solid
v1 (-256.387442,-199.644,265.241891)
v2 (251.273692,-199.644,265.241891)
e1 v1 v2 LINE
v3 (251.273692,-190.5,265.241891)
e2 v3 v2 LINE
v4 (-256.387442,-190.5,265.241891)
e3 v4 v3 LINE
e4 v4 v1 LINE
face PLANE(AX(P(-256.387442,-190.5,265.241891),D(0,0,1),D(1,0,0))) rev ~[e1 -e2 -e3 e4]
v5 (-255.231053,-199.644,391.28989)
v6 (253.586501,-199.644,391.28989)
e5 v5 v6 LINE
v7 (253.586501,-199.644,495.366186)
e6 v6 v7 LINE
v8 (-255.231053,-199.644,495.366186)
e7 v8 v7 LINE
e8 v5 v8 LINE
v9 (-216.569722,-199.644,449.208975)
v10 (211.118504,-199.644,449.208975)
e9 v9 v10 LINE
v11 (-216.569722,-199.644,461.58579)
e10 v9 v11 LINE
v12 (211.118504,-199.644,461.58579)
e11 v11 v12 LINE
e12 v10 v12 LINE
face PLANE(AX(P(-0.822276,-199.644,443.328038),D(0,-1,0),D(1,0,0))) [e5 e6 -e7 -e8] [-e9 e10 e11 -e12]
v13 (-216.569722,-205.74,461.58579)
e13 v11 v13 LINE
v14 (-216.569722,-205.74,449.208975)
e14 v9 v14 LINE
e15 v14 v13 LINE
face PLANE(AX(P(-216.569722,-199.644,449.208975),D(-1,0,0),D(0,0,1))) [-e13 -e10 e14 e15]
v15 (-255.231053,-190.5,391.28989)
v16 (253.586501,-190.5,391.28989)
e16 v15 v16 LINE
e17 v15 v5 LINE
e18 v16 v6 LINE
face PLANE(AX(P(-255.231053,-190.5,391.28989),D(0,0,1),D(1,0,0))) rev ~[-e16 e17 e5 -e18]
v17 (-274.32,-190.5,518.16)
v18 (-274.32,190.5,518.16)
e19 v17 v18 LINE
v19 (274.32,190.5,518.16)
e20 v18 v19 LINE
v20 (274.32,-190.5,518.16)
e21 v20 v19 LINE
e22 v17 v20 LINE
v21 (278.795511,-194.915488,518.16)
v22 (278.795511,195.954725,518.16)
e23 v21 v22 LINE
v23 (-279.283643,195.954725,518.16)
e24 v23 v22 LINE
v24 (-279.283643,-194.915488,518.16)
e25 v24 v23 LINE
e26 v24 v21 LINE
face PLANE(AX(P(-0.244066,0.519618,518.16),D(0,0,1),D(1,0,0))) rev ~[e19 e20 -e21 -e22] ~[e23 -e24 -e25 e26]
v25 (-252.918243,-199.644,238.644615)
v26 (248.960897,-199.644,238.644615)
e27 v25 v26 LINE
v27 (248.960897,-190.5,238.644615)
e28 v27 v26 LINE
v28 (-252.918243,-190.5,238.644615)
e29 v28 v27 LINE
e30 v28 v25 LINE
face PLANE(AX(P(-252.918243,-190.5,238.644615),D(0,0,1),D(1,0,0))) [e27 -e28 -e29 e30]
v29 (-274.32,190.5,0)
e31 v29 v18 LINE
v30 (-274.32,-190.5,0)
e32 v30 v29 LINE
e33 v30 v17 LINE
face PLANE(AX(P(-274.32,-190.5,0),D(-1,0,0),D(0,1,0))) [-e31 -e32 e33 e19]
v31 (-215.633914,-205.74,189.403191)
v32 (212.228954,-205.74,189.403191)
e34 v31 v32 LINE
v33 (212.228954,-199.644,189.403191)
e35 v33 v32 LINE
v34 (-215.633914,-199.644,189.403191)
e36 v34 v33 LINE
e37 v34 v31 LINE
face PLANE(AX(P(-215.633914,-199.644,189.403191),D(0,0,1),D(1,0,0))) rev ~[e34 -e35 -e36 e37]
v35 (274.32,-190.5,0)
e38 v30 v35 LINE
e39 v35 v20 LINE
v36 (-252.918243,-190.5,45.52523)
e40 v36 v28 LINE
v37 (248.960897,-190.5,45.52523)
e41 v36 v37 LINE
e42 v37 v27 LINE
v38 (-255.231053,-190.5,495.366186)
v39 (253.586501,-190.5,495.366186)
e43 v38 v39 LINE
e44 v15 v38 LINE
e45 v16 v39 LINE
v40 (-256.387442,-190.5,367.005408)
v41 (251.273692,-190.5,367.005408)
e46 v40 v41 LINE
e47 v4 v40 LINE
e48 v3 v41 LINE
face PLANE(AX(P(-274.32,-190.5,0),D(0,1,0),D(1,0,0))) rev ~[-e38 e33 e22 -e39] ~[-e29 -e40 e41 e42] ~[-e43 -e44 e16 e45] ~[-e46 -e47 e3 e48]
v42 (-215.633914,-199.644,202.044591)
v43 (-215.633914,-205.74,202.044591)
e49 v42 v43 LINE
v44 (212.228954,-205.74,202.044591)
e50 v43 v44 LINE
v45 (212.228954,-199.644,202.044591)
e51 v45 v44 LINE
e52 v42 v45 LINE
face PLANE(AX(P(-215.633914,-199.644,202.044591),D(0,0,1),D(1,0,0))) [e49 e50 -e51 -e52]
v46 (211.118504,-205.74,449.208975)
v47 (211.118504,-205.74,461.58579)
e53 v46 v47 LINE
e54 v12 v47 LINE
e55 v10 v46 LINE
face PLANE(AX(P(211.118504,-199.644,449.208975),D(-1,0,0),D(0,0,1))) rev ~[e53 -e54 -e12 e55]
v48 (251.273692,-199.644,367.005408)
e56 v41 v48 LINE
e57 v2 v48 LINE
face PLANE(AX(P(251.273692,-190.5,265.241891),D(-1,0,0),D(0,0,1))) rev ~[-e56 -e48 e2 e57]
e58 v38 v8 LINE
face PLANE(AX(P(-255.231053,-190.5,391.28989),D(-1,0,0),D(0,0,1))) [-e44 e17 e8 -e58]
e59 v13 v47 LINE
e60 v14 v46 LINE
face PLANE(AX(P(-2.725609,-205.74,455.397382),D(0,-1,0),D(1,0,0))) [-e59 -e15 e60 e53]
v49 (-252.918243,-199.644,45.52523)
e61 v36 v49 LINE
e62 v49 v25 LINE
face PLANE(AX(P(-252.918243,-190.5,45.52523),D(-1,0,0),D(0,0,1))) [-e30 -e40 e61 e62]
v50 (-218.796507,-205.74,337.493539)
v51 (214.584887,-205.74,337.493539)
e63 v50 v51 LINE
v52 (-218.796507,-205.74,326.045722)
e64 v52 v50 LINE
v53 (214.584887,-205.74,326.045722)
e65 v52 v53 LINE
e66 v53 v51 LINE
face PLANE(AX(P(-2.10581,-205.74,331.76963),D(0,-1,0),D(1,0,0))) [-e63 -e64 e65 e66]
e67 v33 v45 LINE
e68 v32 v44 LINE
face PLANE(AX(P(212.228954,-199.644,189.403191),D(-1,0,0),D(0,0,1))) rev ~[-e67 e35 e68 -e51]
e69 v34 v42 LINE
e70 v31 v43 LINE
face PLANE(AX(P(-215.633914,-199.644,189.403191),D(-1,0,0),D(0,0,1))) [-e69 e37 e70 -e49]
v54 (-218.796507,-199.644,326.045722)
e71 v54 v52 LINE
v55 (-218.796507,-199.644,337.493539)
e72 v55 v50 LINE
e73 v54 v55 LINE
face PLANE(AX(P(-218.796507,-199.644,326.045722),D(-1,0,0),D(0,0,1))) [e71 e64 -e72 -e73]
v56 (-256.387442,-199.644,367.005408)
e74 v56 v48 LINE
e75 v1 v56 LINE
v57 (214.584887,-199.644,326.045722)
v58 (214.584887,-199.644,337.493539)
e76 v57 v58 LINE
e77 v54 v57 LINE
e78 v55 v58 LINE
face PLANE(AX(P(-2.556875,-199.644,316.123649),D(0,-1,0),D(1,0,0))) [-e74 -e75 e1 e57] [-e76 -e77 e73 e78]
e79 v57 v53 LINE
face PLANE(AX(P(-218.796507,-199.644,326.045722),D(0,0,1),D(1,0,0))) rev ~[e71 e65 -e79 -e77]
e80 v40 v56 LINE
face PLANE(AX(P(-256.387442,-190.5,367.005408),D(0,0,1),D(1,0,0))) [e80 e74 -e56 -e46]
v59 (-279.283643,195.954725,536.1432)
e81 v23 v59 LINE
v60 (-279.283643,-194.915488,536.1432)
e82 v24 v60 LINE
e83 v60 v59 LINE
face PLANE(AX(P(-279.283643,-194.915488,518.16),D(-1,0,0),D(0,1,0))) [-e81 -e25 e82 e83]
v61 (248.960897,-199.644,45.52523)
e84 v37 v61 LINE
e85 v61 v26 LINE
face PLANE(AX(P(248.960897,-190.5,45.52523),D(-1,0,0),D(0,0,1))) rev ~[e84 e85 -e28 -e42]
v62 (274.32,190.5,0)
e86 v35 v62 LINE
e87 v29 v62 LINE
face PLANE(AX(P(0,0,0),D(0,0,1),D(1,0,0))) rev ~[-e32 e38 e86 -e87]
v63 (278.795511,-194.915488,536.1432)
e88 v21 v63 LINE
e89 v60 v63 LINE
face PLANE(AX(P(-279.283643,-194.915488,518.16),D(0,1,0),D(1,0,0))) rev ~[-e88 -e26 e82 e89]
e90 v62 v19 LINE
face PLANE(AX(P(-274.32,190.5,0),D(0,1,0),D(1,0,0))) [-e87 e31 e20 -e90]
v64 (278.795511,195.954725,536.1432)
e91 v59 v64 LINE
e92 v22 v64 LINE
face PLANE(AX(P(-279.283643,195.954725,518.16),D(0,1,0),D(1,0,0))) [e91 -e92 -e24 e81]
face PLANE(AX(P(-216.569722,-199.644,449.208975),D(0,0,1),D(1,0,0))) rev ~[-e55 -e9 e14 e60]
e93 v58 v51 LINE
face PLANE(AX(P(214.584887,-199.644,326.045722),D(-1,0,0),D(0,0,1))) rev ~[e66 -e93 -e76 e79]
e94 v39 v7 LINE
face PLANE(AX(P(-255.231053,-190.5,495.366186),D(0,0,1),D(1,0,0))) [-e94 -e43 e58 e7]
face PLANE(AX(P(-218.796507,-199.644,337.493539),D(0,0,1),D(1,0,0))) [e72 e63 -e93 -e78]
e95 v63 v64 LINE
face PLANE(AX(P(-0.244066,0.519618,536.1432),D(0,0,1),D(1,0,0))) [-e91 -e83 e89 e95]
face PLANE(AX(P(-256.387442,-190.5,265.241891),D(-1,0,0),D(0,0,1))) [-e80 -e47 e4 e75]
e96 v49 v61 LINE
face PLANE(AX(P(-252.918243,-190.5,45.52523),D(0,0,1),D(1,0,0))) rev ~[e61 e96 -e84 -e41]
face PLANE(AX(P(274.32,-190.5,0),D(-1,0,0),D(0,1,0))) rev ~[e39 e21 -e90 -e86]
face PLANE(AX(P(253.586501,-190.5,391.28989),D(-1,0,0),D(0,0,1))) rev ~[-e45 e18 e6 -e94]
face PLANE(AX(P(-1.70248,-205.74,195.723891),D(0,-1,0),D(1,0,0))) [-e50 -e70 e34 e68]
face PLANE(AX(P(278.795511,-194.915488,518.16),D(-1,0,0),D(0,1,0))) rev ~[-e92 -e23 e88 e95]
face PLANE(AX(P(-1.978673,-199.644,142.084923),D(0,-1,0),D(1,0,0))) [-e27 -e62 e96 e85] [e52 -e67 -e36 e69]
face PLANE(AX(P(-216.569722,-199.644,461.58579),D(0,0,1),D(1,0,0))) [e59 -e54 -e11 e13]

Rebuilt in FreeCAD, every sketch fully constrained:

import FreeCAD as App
import Part
import Sketcher

V = App.Vector
Q = App.Units.Quantity

doc = App.newDocument("Part")
params = doc.addObject("Spreadsheet::Sheet", "Params")
for row, (alias, value) in enumerate([
    ("sketch1_height", "15 in"),
    ("sketch1_width", "21.6 in"),
    ("pad1_length", "20.4 in"),
    ("pad2_length", "0.708 in"),
    ("pad3_length", "0.36 in"),
    ("pad4_length", "0.24 in"),
], start=1):
    params.set(f"A{row}", alias)
    params.set(f"B{row}", "=" + value)
    params.setAlias(f"B{row}", alias)

body = doc.addObject("PartDesign::Body", "Body")

# Sketch on XY plane
sketch1 = doc.addObject("Sketcher::SketchObject", "Sketch")
body.addObject(sketch1)
sketch1.AttachmentSupport = (doc.XY_Plane, [""])
sketch1.MapMode = "FlatFace"
sketch1.addGeometry([
    Part.LineSegment(V(-274.32, 190.5, 0), V(-274.32, -190.5, 0)),
    Part.LineSegment(V(-274.32, -190.5, 0), V(274.32, -190.5, 0)),
    Part.LineSegment(V(274.32, -190.5, 0), V(274.32, 190.5, 0)),
    Part.LineSegment(V(274.32, 190.5, 0), V(-274.32, 190.5, 0)),
], False)
sketch1.addConstraint([
    Sketcher.Constraint("Coincident", 0, 2, 1, 1),
    Sketcher.Constraint("Coincident", 1, 2, 2, 1),
    Sketcher.Constraint("Coincident", 2, 2, 3, 1),
    Sketcher.Constraint("Coincident", 3, 2, 0, 1),
    Sketcher.Constraint("Vertical", 0),
    Sketcher.Constraint("Horizontal", 1),
    Sketcher.Constraint("Vertical", 2),
    Sketcher.Constraint("Horizontal", 3),
    Sketcher.Constraint("Symmetric", 0, 2, 2, 2, -1, 1),
    Sketcher.Constraint("DistanceY", 0, 2, 0, 1, Q("15 in")),
    Sketcher.Constraint("DistanceX", 1, 1, 1, 2, Q("21.6 in")),
])
sketch1.setExpression("Constraints[9]", "Params.sketch1_height")
sketch1.setExpression("Constraints[10]", "Params.sketch1_width")
pad1 = doc.addObject("PartDesign::Pad", "Pad")
body.addObject(pad1)
pad1.Profile = sketch1
pad1.setExpression("Length", "Params.pad1_length")

# Sketch on XY plane
sketch2 = doc.addObject("Sketcher::SketchObject", "Sketch001")
body.addObject(sketch2)
sketch2.AttachmentSupport = (doc.XY_Plane, [""])
sketch2.MapMode = "FlatFace"
sketch2.AttachmentOffset = App.Placement(V(0, 0, 20.4 * 25.4), App.Rotation())
sketch2.addGeometry([
    Part.LineSegment(V(-279.283643, 195.954725, 0), V(-279.283643, -194.915488, 0)),
    Part.LineSegment(V(-279.283643, -194.915488, 0), V(278.795511, -194.915488, 0)),
    Part.LineSegment(V(278.795511, -194.915488, 0), V(278.795511, 195.954725, 0)),
    Part.LineSegment(V(278.795511, 195.954725, 0), V(-279.283643, 195.954725, 0)),
], False)
sketch2.addConstraint([
    Sketcher.Constraint("Coincident", 0, 2, 1, 1),
    Sketcher.Constraint("Coincident", 1, 2, 2, 1),
    Sketcher.Constraint("Coincident", 2, 2, 3, 1),
    Sketcher.Constraint("Coincident", 3, 2, 0, 1),
    Sketcher.Constraint("Vertical", 0),
    Sketcher.Constraint("Horizontal", 1),
    Sketcher.Constraint("Vertical", 2),
    Sketcher.Constraint("Horizontal", 3),
    Sketcher.Constraint("DistanceX", 1, 1, 1, 2, Q("558.079153 mm")),
    Sketcher.Constraint("DistanceY", 0, 2, 0, 1, Q("390.870214 mm")),
    Sketcher.Constraint("DistanceY", 0, 2, -1, 1, Q("194.915488 mm")),
    Sketcher.Constraint("DistanceX", -1, 1, 1, 2, Q("278.795511 mm")),
])
pad2 = doc.addObject("PartDesign::Pad", "Pad001")
body.addObject(pad2)
pad2.Profile = sketch2
pad2.setExpression("Length", "Params.pad2_length")

# Sketch on XZ plane
sketch3 = doc.addObject("Sketcher::SketchObject", "Sketch002")
body.addObject(sketch3)
sketch3.AttachmentSupport = (doc.XZ_Plane, [""])
sketch3.MapMode = "FlatFace"
sketch3.AttachmentOffset = App.Placement(V(0, 0, 7.5 * 25.4), App.Rotation())
sketch3.addGeometry([
    Part.LineSegment(V(-255.231053, 495.366186, 0), V(-255.231053, 391.28989, 0)),  # 0
    Part.LineSegment(V(-255.231053, 391.28989, 0), V(253.586501, 391.28989, 0)),  # 1
    Part.LineSegment(V(253.586501, 391.28989, 0), V(253.586501, 495.366186, 0)),  # 2
    Part.LineSegment(V(253.586501, 495.366186, 0), V(-255.231053, 495.366186, 0)),  # 3
    Part.LineSegment(V(-256.387442, 367.005408, 0), V(-256.387442, 265.241891, 0)),  # 4
    Part.LineSegment(V(-256.387442, 265.241891, 0), V(251.273692, 265.241891, 0)),  # 5
    Part.LineSegment(V(251.273692, 265.241891, 0), V(251.273692, 367.005408, 0)),  # 6
    Part.LineSegment(V(251.273692, 367.005408, 0), V(-256.387442, 367.005408, 0)),  # 7
    Part.LineSegment(V(-252.918243, 238.644615, 0), V(-252.918243, 45.52523, 0)),  # 8
    Part.LineSegment(V(-252.918243, 45.52523, 0), V(248.960897, 45.52523, 0)),  # 9
    Part.LineSegment(V(248.960897, 45.52523, 0), V(248.960897, 238.644615, 0)),  # 10
    Part.LineSegment(V(248.960897, 238.644615, 0), V(-252.918243, 238.644615, 0)),  # 11
], False)
sketch3.addConstraint([
    Sketcher.Constraint("Coincident", 0, 2, 1, 1),
    Sketcher.Constraint("Coincident", 1, 2, 2, 1),
    Sketcher.Constraint("Coincident", 2, 2, 3, 1),
    Sketcher.Constraint("Coincident", 3, 2, 0, 1),
    Sketcher.Constraint("Coincident", 4, 2, 5, 1),
    Sketcher.Constraint("Coincident", 5, 2, 6, 1),
    Sketcher.Constraint("Coincident", 6, 2, 7, 1),
    Sketcher.Constraint("Coincident", 7, 2, 4, 1),
    Sketcher.Constraint("Coincident", 8, 2, 9, 1),
    Sketcher.Constraint("Coincident", 9, 2, 10, 1),
    Sketcher.Constraint("Coincident", 10, 2, 11, 1),
    Sketcher.Constraint("Coincident", 11, 2, 8, 1),
    Sketcher.Constraint("Vertical", 0),
    Sketcher.Constraint("Horizontal", 1),
    Sketcher.Constraint("Vertical", 2),
    Sketcher.Constraint("Horizontal", 3),
    Sketcher.Constraint("Vertical", 4),
    Sketcher.Constraint("Horizontal", 5),
    Sketcher.Constraint("Vertical", 6),
    Sketcher.Constraint("Horizontal", 7),
    Sketcher.Constraint("Vertical", 8),
    Sketcher.Constraint("Horizontal", 9),
    Sketcher.Constraint("Vertical", 10),
    Sketcher.Constraint("Horizontal", 11),
    Sketcher.Constraint("DistanceY", 8, 2, 7, 2, Q("12.6566999 in")),
    Sketcher.Constraint("DistanceX", 9, 1, 9, 2, Q("501.879141 mm")),
    Sketcher.Constraint("DistanceX", -1, 1, 1, 2, Q("253.586501 mm")),
    Sketcher.Constraint("DistanceY", 4, 2, 0, 2, Q("126.047999 mm")),
    Sketcher.Constraint("DistanceX", 4, 2, 8, 2, Q("3.469199 mm")),
    Sketcher.Constraint("DistanceX", 1, 1, 1, 2, Q("508.817554 mm")),
    Sketcher.Constraint("DistanceX", 5, 1, 5, 2, Q("507.661134 mm")),
    Sketcher.Constraint("DistanceY", 0, 2, 0, 1, Q("104.076296 mm")),
    Sketcher.Constraint("DistanceY", 4, 2, 4, 1, Q("101.763517 mm")),
    Sketcher.Constraint("DistanceY", 8, 2, 8, 1, Q("193.119384 mm")),
    Sketcher.Constraint("DistanceY", -1, 1, 0, 2, Q("391.28989 mm")),
    Sketcher.Constraint("DistanceX", -1, 1, 5, 2, Q("251.273692 mm")),
])
pad3 = doc.addObject("PartDesign::Pad", "Pad002")
body.addObject(pad3)
pad3.Profile = sketch3
pad3.setExpression("Length", "Params.pad3_length")

# Sketch on XZ plane
sketch4 = doc.addObject("Sketcher::SketchObject", "Sketch003")
body.addObject(sketch4)
sketch4.AttachmentSupport = (doc.XZ_Plane, [""])
sketch4.MapMode = "FlatFace"
sketch4.AttachmentOffset = App.Placement(V(0, 0, 7.86 * 25.4), App.Rotation())
sketch4.addGeometry([
    Part.LineSegment(V(-215.633914, 202.044591, 0), V(-215.633914, 189.403191, 0)),  # 0
    Part.LineSegment(V(-215.633914, 189.403191, 0), V(212.228954, 189.403191, 0)),  # 1
    Part.LineSegment(V(212.228954, 189.403191, 0), V(212.228954, 202.044591, 0)),  # 2
    Part.LineSegment(V(212.228954, 202.044591, 0), V(-215.633914, 202.044591, 0)),  # 3
    Part.LineSegment(V(-218.796507, 337.493539, 0), V(-218.796507, 326.045722, 0)),  # 4
    Part.LineSegment(V(-218.796507, 326.045722, 0), V(214.584887, 326.045722, 0)),  # 5
    Part.LineSegment(V(214.584887, 326.045722, 0), V(214.584887, 337.493539, 0)),  # 6
    Part.LineSegment(V(214.584887, 337.493539, 0), V(-218.796507, 337.493539, 0)),  # 7
    Part.LineSegment(V(-216.569722, 461.58579, 0), V(-216.569722, 449.208975, 0)),  # 8
    Part.LineSegment(V(-216.569722, 449.208975, 0), V(211.118504, 449.208975, 0)),  # 9
    Part.LineSegment(V(211.118504, 449.208975, 0), V(211.118504, 461.58579, 0)),  # 10
    Part.LineSegment(V(211.118504, 461.58579, 0), V(-216.569722, 461.58579, 0)),  # 11
], False)
sketch4.addConstraint([
    Sketcher.Constraint("Coincident", 0, 2, 1, 1),
    Sketcher.Constraint("Coincident", 1, 2, 2, 1),
    Sketcher.Constraint("Coincident", 2, 2, 3, 1),
    Sketcher.Constraint("Coincident", 3, 2, 0, 1),
    Sketcher.Constraint("Coincident", 4, 2, 5, 1),
    Sketcher.Constraint("Coincident", 5, 2, 6, 1),
    Sketcher.Constraint("Coincident", 6, 2, 7, 1),
    Sketcher.Constraint("Coincident", 7, 2, 4, 1),
    Sketcher.Constraint("Coincident", 8, 2, 9, 1),
    Sketcher.Constraint("Coincident", 9, 2, 10, 1),
    Sketcher.Constraint("Coincident", 10, 2, 11, 1),
    Sketcher.Constraint("Coincident", 11, 2, 8, 1),
    Sketcher.Constraint("Vertical", 0),
    Sketcher.Constraint("Horizontal", 1),
    Sketcher.Constraint("Vertical", 2),
    Sketcher.Constraint("Horizontal", 3),
    Sketcher.Constraint("Vertical", 4),
    Sketcher.Constraint("Horizontal", 5),
    Sketcher.Constraint("Vertical", 6),
    Sketcher.Constraint("Horizontal", 7),
    Sketcher.Constraint("Vertical", 8),
    Sketcher.Constraint("Horizontal", 9),
    Sketcher.Constraint("Vertical", 10),
    Sketcher.Constraint("Horizontal", 11),
    Sketcher.Constraint("DistanceY", 0, 2, 0, 1, Q("12.6414 mm")),
    Sketcher.Constraint("DistanceX", 3, 2, 5, 2, Q("430.218801 mm")),
    Sketcher.Constraint("DistanceY", 2, 2, 10, 2, Q("259.541199 mm")),
    Sketcher.Constraint("DistanceX", 1, 1, 1, 2, Q("427.862868 mm")),
    Sketcher.Constraint("DistanceX", 5, 1, 5, 2, Q("433.381394 mm")),
    Sketcher.Constraint("DistanceX", 9, 1, 9, 2, Q("427.688226 mm")),
    Sketcher.Constraint("DistanceY", 4, 2, 4, 1, Q("11.447817 mm")),
    Sketcher.Constraint("DistanceY", 8, 2, 8, 1, Q("12.376815 mm")),
    Sketcher.Constraint("DistanceY", -1, 1, 0, 2, Q("189.403191 mm")),
    Sketcher.Constraint("DistanceY", -1, 1, 4, 2, Q("326.045722 mm")),
    Sketcher.Constraint("DistanceX", 8, 2, -1, 1, Q("216.569722 mm")),
    Sketcher.Constraint("DistanceX", 8, 2, 6, 2, Q("431.154609 mm")),
])
pad4 = doc.addObject("PartDesign::Pad", "Pad003")
body.addObject(pad4)
pad4.Profile = sketch4
pad4.setExpression("Length", "Params.pad4_length")

doc.recompute()
